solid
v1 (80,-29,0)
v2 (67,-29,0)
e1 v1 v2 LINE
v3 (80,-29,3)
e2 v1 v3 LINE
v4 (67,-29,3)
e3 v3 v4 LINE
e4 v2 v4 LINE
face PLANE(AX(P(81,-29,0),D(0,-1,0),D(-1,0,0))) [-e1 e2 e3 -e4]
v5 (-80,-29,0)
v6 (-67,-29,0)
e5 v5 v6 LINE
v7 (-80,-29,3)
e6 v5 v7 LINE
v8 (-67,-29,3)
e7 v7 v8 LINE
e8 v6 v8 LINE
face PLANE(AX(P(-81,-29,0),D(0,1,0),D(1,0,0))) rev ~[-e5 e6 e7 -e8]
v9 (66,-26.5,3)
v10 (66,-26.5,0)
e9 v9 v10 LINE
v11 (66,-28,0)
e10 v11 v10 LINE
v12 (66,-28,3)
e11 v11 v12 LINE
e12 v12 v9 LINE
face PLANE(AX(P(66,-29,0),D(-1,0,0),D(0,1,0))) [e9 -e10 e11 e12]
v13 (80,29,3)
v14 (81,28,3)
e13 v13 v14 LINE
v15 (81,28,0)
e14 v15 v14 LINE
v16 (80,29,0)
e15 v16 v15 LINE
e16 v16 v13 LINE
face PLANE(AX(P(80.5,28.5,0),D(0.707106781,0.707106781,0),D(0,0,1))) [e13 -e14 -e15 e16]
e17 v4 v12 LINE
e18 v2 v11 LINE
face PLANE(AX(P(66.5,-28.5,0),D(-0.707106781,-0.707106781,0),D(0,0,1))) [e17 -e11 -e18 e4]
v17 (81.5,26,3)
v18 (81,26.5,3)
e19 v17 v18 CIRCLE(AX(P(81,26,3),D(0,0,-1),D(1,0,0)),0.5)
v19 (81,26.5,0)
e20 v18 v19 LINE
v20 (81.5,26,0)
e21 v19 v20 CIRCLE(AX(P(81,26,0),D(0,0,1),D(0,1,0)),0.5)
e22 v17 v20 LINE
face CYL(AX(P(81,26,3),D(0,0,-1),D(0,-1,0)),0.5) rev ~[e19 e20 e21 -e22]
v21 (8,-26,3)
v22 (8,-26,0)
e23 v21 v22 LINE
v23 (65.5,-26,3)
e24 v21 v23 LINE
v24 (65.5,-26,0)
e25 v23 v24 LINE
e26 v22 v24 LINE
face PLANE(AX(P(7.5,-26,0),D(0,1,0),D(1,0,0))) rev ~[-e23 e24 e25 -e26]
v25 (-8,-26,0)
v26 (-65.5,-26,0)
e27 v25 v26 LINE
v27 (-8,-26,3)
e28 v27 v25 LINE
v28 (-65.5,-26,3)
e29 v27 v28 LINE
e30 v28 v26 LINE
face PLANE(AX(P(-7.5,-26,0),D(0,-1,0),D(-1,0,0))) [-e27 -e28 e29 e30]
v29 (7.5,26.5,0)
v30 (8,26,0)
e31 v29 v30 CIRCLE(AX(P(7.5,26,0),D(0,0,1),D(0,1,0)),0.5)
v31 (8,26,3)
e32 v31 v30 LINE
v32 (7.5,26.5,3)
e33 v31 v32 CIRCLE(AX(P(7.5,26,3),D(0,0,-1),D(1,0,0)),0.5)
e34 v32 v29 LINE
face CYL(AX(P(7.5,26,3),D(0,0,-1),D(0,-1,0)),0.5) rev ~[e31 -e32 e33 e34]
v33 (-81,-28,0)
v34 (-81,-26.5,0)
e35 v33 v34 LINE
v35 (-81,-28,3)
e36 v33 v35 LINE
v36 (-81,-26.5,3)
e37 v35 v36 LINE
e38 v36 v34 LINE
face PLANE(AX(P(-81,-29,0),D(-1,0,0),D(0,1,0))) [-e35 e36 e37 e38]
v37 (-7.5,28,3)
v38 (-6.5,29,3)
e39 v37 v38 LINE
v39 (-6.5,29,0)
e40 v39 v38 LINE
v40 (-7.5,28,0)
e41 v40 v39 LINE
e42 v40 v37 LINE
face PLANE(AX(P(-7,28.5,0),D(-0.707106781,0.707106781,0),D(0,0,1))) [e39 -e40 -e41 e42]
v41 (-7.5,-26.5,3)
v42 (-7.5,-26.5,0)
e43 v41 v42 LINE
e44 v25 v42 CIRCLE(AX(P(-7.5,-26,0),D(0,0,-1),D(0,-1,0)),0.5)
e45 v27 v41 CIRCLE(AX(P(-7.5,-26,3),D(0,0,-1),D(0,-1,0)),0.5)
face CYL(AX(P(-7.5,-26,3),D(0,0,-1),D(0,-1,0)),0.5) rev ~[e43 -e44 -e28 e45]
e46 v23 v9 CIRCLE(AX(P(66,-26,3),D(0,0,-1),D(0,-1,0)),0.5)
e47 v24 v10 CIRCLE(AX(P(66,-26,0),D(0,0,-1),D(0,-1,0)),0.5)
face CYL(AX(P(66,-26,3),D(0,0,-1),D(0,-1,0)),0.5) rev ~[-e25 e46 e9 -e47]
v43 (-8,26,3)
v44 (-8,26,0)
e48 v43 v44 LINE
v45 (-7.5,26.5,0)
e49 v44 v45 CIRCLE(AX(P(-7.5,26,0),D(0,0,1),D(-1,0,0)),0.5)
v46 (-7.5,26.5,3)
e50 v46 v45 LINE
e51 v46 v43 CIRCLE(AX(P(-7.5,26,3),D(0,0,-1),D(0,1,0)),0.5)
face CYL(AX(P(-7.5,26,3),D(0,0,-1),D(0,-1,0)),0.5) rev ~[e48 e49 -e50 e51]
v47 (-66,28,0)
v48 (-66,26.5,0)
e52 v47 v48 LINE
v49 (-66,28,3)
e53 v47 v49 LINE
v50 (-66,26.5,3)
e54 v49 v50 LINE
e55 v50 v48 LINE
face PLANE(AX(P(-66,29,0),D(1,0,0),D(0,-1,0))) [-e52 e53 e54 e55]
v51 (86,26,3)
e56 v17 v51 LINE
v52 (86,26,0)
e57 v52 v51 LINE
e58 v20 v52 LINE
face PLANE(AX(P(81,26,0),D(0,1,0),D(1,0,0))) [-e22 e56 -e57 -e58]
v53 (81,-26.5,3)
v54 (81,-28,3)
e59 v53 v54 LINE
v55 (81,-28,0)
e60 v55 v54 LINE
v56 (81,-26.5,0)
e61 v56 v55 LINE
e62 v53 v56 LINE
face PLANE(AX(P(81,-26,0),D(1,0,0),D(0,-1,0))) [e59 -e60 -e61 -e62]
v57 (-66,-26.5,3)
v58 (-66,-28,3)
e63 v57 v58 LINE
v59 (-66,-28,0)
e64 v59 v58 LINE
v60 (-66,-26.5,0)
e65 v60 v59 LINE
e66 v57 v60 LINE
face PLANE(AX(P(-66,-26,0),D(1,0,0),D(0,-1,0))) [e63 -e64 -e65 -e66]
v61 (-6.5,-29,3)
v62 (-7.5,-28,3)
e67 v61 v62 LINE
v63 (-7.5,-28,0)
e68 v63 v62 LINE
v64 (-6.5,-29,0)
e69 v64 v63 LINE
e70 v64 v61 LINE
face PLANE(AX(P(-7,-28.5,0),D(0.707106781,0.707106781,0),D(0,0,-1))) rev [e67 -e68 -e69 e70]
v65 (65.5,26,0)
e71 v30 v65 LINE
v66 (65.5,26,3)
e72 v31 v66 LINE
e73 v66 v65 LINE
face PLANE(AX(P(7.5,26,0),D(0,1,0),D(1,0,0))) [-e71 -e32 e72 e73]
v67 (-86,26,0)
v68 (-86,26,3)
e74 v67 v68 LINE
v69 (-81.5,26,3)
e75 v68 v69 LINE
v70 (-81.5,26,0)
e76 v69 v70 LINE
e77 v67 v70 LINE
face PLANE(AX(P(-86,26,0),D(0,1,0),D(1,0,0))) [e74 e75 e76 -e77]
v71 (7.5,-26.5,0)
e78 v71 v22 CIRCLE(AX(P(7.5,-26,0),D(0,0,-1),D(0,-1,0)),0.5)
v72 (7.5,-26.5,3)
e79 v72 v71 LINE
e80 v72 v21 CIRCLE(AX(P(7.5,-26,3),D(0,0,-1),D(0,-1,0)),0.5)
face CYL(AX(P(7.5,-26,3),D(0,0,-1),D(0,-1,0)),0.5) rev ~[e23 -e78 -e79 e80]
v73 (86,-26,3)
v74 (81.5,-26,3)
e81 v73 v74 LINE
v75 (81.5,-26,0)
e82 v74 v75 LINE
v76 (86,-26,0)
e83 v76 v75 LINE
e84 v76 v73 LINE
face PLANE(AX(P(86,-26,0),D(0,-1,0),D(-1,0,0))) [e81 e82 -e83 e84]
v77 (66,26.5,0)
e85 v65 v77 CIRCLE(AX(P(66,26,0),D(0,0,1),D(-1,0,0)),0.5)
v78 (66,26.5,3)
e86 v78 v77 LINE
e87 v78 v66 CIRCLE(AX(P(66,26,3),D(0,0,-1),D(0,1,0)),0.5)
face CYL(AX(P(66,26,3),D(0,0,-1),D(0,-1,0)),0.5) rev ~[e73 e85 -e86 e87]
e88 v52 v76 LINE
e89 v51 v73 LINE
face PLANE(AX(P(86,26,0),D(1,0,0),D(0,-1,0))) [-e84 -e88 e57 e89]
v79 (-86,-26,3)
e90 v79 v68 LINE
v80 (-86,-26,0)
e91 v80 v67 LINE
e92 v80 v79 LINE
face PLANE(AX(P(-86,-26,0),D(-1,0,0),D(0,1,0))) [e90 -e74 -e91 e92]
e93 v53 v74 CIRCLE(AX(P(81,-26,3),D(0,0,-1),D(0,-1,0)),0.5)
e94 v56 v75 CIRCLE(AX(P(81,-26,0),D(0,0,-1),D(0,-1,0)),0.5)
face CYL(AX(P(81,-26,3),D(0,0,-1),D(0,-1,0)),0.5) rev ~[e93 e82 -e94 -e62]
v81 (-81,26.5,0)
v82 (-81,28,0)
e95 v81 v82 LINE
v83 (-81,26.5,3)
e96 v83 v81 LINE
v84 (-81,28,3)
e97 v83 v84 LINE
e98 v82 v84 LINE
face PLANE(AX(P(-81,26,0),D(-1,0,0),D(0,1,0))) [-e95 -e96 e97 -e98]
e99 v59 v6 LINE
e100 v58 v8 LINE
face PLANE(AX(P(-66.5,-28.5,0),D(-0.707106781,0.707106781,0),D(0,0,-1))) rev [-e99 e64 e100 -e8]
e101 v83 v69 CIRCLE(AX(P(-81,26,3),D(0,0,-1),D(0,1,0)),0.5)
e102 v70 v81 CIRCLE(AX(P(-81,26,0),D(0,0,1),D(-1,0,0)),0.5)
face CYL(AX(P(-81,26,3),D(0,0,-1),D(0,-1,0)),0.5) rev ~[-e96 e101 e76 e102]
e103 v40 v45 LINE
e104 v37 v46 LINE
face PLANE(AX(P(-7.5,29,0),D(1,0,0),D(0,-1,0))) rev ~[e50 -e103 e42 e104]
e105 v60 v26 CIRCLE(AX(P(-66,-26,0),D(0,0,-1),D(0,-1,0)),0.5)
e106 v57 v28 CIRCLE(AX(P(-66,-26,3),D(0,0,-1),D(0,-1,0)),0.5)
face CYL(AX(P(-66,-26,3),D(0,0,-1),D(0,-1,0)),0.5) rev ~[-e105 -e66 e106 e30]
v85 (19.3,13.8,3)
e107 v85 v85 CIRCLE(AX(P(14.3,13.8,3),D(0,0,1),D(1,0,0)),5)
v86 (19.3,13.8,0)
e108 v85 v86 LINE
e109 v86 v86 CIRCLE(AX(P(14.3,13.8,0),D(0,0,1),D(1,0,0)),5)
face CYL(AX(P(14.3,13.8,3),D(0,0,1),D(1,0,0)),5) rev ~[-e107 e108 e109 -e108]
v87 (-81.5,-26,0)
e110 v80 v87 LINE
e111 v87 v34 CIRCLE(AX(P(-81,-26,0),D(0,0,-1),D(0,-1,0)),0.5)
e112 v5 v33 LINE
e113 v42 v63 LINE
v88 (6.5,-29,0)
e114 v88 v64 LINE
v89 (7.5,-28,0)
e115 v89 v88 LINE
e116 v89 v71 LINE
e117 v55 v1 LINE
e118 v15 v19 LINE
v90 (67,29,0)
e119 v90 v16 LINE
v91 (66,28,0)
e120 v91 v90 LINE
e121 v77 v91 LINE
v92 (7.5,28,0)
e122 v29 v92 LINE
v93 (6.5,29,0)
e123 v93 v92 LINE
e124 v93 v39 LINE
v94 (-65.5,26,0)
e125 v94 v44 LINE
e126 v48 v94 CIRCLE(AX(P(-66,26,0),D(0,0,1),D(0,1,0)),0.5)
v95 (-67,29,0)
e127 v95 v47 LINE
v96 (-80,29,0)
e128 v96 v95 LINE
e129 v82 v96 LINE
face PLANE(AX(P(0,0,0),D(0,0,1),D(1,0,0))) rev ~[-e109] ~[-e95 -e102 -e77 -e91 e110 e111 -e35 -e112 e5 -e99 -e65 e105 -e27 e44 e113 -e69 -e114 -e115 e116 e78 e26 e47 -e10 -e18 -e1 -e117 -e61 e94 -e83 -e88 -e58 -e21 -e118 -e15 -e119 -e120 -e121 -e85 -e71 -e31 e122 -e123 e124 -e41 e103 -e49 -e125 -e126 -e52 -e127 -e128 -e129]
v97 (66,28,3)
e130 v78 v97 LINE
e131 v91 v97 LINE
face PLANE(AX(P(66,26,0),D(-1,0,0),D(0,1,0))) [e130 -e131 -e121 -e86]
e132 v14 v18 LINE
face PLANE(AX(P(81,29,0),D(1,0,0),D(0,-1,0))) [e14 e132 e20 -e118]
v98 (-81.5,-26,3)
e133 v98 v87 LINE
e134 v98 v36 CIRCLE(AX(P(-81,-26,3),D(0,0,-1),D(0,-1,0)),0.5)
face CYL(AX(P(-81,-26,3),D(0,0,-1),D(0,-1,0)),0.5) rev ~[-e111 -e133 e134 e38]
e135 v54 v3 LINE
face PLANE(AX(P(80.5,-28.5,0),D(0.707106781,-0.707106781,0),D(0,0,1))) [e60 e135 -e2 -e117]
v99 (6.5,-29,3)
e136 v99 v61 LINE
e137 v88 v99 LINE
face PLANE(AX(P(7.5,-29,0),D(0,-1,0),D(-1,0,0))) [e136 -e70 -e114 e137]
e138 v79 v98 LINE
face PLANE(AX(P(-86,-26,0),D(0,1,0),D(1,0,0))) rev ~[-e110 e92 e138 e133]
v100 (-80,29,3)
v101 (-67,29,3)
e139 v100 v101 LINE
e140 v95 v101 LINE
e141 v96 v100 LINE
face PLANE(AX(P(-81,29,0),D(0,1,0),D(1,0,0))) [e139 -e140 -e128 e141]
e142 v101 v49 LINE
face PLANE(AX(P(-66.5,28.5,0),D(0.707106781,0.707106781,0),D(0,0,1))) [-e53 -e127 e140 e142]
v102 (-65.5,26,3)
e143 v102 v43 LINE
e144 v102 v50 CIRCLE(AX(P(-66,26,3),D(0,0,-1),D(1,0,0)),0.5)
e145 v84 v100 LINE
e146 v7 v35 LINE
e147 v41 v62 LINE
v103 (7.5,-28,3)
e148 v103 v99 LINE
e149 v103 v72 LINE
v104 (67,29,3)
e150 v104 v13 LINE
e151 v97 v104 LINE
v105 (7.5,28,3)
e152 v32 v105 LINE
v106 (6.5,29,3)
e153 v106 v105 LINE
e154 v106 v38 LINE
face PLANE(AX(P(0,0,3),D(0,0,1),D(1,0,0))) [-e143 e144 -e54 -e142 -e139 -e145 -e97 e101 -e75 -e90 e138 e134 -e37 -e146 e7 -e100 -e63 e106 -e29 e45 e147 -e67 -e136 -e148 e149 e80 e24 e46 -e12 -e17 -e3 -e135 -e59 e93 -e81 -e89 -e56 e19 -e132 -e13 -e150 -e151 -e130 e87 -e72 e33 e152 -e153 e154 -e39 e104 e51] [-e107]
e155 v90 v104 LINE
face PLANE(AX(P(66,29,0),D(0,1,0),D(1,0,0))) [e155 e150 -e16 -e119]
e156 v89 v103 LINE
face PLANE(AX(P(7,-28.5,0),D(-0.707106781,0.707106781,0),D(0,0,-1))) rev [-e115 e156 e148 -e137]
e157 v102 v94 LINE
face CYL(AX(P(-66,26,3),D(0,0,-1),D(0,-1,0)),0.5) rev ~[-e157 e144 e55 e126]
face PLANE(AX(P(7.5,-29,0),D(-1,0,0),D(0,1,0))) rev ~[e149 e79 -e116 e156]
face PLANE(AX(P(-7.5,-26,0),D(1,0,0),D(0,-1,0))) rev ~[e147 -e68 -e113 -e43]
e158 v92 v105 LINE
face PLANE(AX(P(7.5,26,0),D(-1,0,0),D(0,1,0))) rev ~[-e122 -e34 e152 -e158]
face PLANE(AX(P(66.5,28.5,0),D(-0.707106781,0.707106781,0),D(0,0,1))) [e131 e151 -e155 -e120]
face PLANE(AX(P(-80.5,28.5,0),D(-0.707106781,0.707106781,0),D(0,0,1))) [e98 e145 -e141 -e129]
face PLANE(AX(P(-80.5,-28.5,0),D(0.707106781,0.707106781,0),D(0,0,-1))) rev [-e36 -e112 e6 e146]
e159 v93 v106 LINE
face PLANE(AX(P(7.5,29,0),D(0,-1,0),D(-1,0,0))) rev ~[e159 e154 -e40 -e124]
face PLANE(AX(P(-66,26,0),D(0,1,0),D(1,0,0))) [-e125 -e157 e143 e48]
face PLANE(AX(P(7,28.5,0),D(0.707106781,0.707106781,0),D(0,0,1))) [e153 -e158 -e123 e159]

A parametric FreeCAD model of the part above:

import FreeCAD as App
import Part
import Sketcher
from FreeCAD import Vector
Q = App.Units.Quantity


def edges_at(feature, points):
    """Names of the edges that pass closest to the given points."""
    edges = feature.Shape.Edges
    near = lambda p: min(range(len(edges)), key=lambda i: edges[i].distToShape(Part.Vertex(*p))[0])
    return sorted({f"Edge{near(p) + 1}" for p in points})


def add_polygon(sketch, points):
    """Adds a closed chain of lines whose ends are joined by coincident constraints."""
    first, n = sketch.GeometryCount, len(points)
    for a, b in zip(points, points[1:] + points[:1]):
        sketch.addGeometry(Part.LineSegment(App.Vector(*a, 0), App.Vector(*b, 0)), False)
    for i in range(n):
        sketch.addConstraint(Sketcher.Constraint("Coincident", first + i, 2, first + (i + 1) % n, 1))

doc = App.newDocument("Part")
body = doc.addObject("PartDesign::Body", "Body")

# Sketch on XY plane
sketch1 = body.newObject("Sketcher::SketchObject", "Sketch")
sketch1.AttachmentSupport = (doc.getObject("XY_Plane"), [""])
sketch1.MapMode = "FlatFace"
add_polygon(sketch1, [(-86, 26), (-86, -26), (-81, -26), (-81, -29), (-66, -29), (-66, -26), (-7.5, -26), (-7.5, -29), (7.5, -29), (7.5, -26), (66, -26), (66, -29), (81, -29), (81, -26), (86, -26), (86, 26), (81, 26), (81, 29), (66, 29), (66, 26), (7.5, 26), (7.5, 29), (-7.5, 29), (-7.5, 26), (-66, 26), (-66, 29), (-81, 29), (-81, 26)])  # lines 0-27
sketch1.addConstraint([
    Sketcher.Constraint("Vertical", 0),
    Sketcher.Constraint("Horizontal", 1),
    Sketcher.Constraint("Vertical", 2),
    Sketcher.Constraint("Horizontal", 3),
    Sketcher.Constraint("Vertical", 4),
    Sketcher.Constraint("Horizontal", 5),
    Sketcher.Constraint("Vertical", 6),
    Sketcher.Constraint("Horizontal", 7),
    Sketcher.Constraint("Vertical", 8),
    Sketcher.Constraint("Horizontal", 9),
    Sketcher.Constraint("Vertical", 10),
    Sketcher.Constraint("Horizontal", 11),
    Sketcher.Constraint("Vertical", 12),
    Sketcher.Constraint("Horizontal", 13),
    Sketcher.Constraint("Vertical", 14),
    Sketcher.Constraint("Horizontal", 15),
    Sketcher.Constraint("Vertical", 16),
    Sketcher.Constraint("Horizontal", 17),
    Sketcher.Constraint("Vertical", 18),
    Sketcher.Constraint("Horizontal", 19),
    Sketcher.Constraint("Vertical", 20),
    Sketcher.Constraint("Horizontal", 21),
    Sketcher.Constraint("Vertical", 22),
    Sketcher.Constraint("Horizontal", 23),
    Sketcher.Constraint("Vertical", 24),
    Sketcher.Constraint("Horizontal", 25),
    Sketcher.Constraint("Vertical", 26),
    Sketcher.Constraint("Horizontal", 27),
    Sketcher.Constraint("Symmetric", 0, 2, 14, 2, -1, 1),
    Sketcher.Constraint("Symmetric", 2, 2, 16, 2, -1, 1),
    Sketcher.Constraint("Symmetric", 4, 2, 18, 2, -1, 1),
    Sketcher.Constraint("Symmetric", 6, 2, 20, 2, -1, 1),
    Sketcher.Constraint("Symmetric", 8, 2, 22, 2, -1, 1),
    Sketcher.Constraint("Symmetric", 10, 2, 24, 2, -1, 1),
    Sketcher.Constraint("Symmetric", 12, 2, 26, 2, -1, 1),
    Sketcher.Constraint("Symmetric", 5, 2, 8, 2, -2),
    Sketcher.Constraint("Symmetric", 3, 2, 10, 2, -2),
    Sketcher.Constraint("Symmetric", 1, 2, 12, 2, -2),
    Sketcher.Constraint("Horizontal", 1, 2, 4, 2),
    Sketcher.Constraint("Horizontal", 3, 2, 6, 2),
    Sketcher.Constraint("Equal", 3, 7),
    Sketcher.Constraint("DistanceX", 1, 1, 1, 2, Q("5 mm")),
    Sketcher.Constraint("DistanceX", 3, 1, 3, 2, Q("15 mm")),
    Sketcher.Constraint("DistanceY", 0, 2, 0, 1, Q("52 mm")),
    Sketcher.Constraint("DistanceY", 2, 2, 2, 1, Q("3 mm")),
    Sketcher.Constraint("DistanceX", 5, 1, 5, 2, Q("58.5 mm")),
])
pad1 = body.newObject("PartDesign::Pad", "Pad")
pad1.Profile = sketch1
pad1.Length = 3

# Sketch on XY plane
sketch2 = body.newObject("Sketcher::SketchObject", "Sketch001")
sketch2.AttachmentSupport = (doc.getObject("XY_Plane"), [""])
sketch2.MapMode = "FlatFace"
sketch2.AttachmentOffset = App.Placement(Vector(0, 0, 3), App.Rotation())
sketch2.addGeometry([
    Part.Circle(Vector(-81, 26, 0), Vector(0, 0, 1), 0.5),  # 0
    Part.Circle(Vector(-66, 26, 0), Vector(0, 0, 1), 0.5),  # 1
    Part.Circle(Vector(-81, -26, 0), Vector(0, 0, 1), 0.5),  # 2
    Part.Circle(Vector(-66, -26, 0), Vector(0, 0, 1), 0.5),  # 3
    Part.Circle(Vector(-7.5, -26, 0), Vector(0, 0, 1), 0.5),  # 4
    Part.Circle(Vector(7.5, -26, 0), Vector(0, 0, 1), 0.5),  # 5
    Part.Circle(Vector(66, -26, 0), Vector(0, 0, 1), 0.5),  # 6
    Part.Circle(Vector(81, -26, 0), Vector(0, 0, 1), 0.5),  # 7
    Part.Circle(Vector(81, 26, 0), Vector(0, 0, 1), 0.5),  # 8
    Part.Circle(Vector(66, 26, 0), Vector(0, 0, 1), 0.5),  # 9
    Part.Circle(Vector(-7.5, 26, 0), Vector(0, 0, 1), 0.5),  # 10
    Part.Circle(Vector(7.5, 26, 0), Vector(0, 0, 1), 0.5),  # 11
], False)
sketch2.addConstraint([
    Sketcher.Constraint("Equal", 0, 1),
    Sketcher.Constraint("Equal", 1, 2),
    Sketcher.Constraint("Equal", 2, 3),
    Sketcher.Constraint("Equal", 3, 4),
    Sketcher.Constraint("Equal", 4, 5),
    Sketcher.Constraint("Equal", 5, 6),
    Sketcher.Constraint("Equal", 6, 7),
    Sketcher.Constraint("Equal", 7, 8),
    Sketcher.Constraint("Equal", 8, 9),
    Sketcher.Constraint("Equal", 9, 10),
    Sketcher.Constraint("Equal", 10, 11),
    Sketcher.Constraint("Symmetric", 1, 3, 6, 3, -1, 1),
    Sketcher.Constraint("Symmetric", 0, 3, 7, 3, -1, 1),
    Sketcher.Constraint("Symmetric", 2, 3, 8, 3, -1, 1),
    Sketcher.Constraint("Symmetric", 3, 3, 9, 3, -1, 1),
    Sketcher.Constraint("Symmetric", 5, 3, 10, 3, -1, 1),
    Sketcher.Constraint("Symmetric", 4, 3, 11, 3, -1, 1),
    Sketcher.Constraint("Symmetric", 4, 3, 5, 3, -2),
    Sketcher.Constraint("Symmetric", 3, 3, 6, 3, -2),
    Sketcher.Constraint("Symmetric", 2, 3, 7, 3, -2),
    Sketcher.Constraint("Horizontal", 0, 3, 1, 3),
    Sketcher.Constraint("Horizontal", 3, 3, 4, 3),
    Sketcher.Constraint("Diameter", 0, Q("1 mm")),
    Sketcher.Constraint("DistanceX", 0, 3, -1, 1, Q("81 mm")),
    Sketcher.Constraint("DistanceY", -1, 1, 0, 3, Q("26 mm")),
    Sketcher.Constraint("DistanceX", 1, 3, -1, 1, Q("66 mm")),
    Sketcher.Constraint("DistanceX", 4, 3, 5, 3, Q("15 mm")),
])
doc.recompute()
hole = body.newObject("PartDesign::Hole", "Hole")
hole.Profile = sketch2
hole.ThreadType = "None"
hole.Diameter = 1
hole.DepthType = "ThroughAll"
doc.recompute()

chamfer = body.newObject("PartDesign::Chamfer", "Chamfer")
chamfer.Base = (hole, edges_at(hole, [
    (-81, 29, 1.5),
    (-66, 29, 1.5),
    (-7.5, 29, 1.5),
    (7.5, 29, 1.5),
    (66, 29, 1.5),
    (81, 29, 1.5),
    (-81, -29, 1.5),
    (-66, -29, 1.5),
    (-7.5, -29, 1.5),
    (7.5, -29, 1.5),
    (66, -29, 1.5),
    (81, -29, 1.5),
]))
chamfer.Size = 1

# Sketch on XY plane
sketch3 = body.newObject("Sketcher::SketchObject", "Sketch002")
sketch3.AttachmentSupport = (doc.getObject("XY_Plane"), [""])
sketch3.MapMode = "FlatFace"
sketch3.AttachmentOffset = App.Placement(Vector(0, 0, 3), App.Rotation())
sketch3.addGeometry(Part.Circle(Vector(14.3, 13.8, 0), Vector(0, 0, 1), 5), False)
sketch3.addConstraint([
    Sketcher.Constraint("Diameter", 0, Q("10 mm")),
    Sketcher.Constraint("DistanceX", -1, 1, 0, 3, Q("14.3 mm")),
    Sketcher.Constraint("DistanceY", -1, 1, 0, 3, Q("13.8 mm")),
])
pocket1 = body.newObject("PartDesign::Pocket", "Pocket")
pocket1.Profile = sketch3
pocket1.Type = "ThroughAll"

doc.recompute()
